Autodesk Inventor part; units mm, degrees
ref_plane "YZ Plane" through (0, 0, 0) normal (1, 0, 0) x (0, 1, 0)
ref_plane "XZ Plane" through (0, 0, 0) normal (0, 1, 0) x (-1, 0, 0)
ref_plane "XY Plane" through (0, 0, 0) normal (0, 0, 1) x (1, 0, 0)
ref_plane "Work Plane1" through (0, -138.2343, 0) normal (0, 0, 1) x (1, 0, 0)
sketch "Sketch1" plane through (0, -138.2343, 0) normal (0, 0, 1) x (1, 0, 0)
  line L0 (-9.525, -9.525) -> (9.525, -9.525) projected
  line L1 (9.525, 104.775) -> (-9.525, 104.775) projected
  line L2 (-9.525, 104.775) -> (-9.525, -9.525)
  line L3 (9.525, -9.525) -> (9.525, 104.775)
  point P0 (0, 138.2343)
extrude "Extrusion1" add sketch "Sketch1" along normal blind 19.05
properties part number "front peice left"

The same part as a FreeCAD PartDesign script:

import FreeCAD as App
import Part
import Sketcher

V = App.Vector
Q = App.Units.Quantity

doc = App.newDocument("Part")
body = doc.addObject("PartDesign::Body", "Body")

# Sketch on XY plane
sketch1 = body.newObject("Sketcher::SketchObject", "Sketch")
sketch1.AttachmentSupport = (doc.getObject("XY_Plane"), [""])
sketch1.MapMode = "FlatFace"
sketch1.addGeometry([
    Part.LineSegment(V(-10, -33, 0), V(-10, -148, 0)),
    Part.LineSegment(V(-10, -148, 0), V(10, -148, 0)),
    Part.LineSegment(V(10, -148, 0), V(10, -33, 0)),
    Part.LineSegment(V(10, -33, 0), V(-10, -33, 0)),
], False)
sketch1.addConstraint([
    Sketcher.Constraint("Coincident", 0, 2, 1, 1),
    Sketcher.Constraint("Coincident", 1, 2, 2, 1),
    Sketcher.Constraint("Coincident", 2, 2, 3, 1),
    Sketcher.Constraint("Coincident", 3, 2, 0, 1),
    Sketcher.Constraint("Vertical", 0),
    Sketcher.Constraint("Horizontal", 1),
    Sketcher.Constraint("Vertical", 2),
    Sketcher.Constraint("Horizontal", 3),
    Sketcher.Constraint("DistanceY", 0, 2, 0, 1, Q("4.5 in")),
    Sketcher.Constraint("DistanceX", 1, 1, 1, 2, Q("0.75 in")),
    Sketcher.Constraint("DistanceX", 0, 2, -1, 1, Q("0.375 in")),
    Sketcher.Constraint("DistanceY", 0, 2, -1, 1, Q("5.8173 in")),
])
pad1 = body.newObject("PartDesign::Pad", "Pad")
pad1.Profile = sketch1
pad1.Length = Q("0.75 in")

doc.recompute()
